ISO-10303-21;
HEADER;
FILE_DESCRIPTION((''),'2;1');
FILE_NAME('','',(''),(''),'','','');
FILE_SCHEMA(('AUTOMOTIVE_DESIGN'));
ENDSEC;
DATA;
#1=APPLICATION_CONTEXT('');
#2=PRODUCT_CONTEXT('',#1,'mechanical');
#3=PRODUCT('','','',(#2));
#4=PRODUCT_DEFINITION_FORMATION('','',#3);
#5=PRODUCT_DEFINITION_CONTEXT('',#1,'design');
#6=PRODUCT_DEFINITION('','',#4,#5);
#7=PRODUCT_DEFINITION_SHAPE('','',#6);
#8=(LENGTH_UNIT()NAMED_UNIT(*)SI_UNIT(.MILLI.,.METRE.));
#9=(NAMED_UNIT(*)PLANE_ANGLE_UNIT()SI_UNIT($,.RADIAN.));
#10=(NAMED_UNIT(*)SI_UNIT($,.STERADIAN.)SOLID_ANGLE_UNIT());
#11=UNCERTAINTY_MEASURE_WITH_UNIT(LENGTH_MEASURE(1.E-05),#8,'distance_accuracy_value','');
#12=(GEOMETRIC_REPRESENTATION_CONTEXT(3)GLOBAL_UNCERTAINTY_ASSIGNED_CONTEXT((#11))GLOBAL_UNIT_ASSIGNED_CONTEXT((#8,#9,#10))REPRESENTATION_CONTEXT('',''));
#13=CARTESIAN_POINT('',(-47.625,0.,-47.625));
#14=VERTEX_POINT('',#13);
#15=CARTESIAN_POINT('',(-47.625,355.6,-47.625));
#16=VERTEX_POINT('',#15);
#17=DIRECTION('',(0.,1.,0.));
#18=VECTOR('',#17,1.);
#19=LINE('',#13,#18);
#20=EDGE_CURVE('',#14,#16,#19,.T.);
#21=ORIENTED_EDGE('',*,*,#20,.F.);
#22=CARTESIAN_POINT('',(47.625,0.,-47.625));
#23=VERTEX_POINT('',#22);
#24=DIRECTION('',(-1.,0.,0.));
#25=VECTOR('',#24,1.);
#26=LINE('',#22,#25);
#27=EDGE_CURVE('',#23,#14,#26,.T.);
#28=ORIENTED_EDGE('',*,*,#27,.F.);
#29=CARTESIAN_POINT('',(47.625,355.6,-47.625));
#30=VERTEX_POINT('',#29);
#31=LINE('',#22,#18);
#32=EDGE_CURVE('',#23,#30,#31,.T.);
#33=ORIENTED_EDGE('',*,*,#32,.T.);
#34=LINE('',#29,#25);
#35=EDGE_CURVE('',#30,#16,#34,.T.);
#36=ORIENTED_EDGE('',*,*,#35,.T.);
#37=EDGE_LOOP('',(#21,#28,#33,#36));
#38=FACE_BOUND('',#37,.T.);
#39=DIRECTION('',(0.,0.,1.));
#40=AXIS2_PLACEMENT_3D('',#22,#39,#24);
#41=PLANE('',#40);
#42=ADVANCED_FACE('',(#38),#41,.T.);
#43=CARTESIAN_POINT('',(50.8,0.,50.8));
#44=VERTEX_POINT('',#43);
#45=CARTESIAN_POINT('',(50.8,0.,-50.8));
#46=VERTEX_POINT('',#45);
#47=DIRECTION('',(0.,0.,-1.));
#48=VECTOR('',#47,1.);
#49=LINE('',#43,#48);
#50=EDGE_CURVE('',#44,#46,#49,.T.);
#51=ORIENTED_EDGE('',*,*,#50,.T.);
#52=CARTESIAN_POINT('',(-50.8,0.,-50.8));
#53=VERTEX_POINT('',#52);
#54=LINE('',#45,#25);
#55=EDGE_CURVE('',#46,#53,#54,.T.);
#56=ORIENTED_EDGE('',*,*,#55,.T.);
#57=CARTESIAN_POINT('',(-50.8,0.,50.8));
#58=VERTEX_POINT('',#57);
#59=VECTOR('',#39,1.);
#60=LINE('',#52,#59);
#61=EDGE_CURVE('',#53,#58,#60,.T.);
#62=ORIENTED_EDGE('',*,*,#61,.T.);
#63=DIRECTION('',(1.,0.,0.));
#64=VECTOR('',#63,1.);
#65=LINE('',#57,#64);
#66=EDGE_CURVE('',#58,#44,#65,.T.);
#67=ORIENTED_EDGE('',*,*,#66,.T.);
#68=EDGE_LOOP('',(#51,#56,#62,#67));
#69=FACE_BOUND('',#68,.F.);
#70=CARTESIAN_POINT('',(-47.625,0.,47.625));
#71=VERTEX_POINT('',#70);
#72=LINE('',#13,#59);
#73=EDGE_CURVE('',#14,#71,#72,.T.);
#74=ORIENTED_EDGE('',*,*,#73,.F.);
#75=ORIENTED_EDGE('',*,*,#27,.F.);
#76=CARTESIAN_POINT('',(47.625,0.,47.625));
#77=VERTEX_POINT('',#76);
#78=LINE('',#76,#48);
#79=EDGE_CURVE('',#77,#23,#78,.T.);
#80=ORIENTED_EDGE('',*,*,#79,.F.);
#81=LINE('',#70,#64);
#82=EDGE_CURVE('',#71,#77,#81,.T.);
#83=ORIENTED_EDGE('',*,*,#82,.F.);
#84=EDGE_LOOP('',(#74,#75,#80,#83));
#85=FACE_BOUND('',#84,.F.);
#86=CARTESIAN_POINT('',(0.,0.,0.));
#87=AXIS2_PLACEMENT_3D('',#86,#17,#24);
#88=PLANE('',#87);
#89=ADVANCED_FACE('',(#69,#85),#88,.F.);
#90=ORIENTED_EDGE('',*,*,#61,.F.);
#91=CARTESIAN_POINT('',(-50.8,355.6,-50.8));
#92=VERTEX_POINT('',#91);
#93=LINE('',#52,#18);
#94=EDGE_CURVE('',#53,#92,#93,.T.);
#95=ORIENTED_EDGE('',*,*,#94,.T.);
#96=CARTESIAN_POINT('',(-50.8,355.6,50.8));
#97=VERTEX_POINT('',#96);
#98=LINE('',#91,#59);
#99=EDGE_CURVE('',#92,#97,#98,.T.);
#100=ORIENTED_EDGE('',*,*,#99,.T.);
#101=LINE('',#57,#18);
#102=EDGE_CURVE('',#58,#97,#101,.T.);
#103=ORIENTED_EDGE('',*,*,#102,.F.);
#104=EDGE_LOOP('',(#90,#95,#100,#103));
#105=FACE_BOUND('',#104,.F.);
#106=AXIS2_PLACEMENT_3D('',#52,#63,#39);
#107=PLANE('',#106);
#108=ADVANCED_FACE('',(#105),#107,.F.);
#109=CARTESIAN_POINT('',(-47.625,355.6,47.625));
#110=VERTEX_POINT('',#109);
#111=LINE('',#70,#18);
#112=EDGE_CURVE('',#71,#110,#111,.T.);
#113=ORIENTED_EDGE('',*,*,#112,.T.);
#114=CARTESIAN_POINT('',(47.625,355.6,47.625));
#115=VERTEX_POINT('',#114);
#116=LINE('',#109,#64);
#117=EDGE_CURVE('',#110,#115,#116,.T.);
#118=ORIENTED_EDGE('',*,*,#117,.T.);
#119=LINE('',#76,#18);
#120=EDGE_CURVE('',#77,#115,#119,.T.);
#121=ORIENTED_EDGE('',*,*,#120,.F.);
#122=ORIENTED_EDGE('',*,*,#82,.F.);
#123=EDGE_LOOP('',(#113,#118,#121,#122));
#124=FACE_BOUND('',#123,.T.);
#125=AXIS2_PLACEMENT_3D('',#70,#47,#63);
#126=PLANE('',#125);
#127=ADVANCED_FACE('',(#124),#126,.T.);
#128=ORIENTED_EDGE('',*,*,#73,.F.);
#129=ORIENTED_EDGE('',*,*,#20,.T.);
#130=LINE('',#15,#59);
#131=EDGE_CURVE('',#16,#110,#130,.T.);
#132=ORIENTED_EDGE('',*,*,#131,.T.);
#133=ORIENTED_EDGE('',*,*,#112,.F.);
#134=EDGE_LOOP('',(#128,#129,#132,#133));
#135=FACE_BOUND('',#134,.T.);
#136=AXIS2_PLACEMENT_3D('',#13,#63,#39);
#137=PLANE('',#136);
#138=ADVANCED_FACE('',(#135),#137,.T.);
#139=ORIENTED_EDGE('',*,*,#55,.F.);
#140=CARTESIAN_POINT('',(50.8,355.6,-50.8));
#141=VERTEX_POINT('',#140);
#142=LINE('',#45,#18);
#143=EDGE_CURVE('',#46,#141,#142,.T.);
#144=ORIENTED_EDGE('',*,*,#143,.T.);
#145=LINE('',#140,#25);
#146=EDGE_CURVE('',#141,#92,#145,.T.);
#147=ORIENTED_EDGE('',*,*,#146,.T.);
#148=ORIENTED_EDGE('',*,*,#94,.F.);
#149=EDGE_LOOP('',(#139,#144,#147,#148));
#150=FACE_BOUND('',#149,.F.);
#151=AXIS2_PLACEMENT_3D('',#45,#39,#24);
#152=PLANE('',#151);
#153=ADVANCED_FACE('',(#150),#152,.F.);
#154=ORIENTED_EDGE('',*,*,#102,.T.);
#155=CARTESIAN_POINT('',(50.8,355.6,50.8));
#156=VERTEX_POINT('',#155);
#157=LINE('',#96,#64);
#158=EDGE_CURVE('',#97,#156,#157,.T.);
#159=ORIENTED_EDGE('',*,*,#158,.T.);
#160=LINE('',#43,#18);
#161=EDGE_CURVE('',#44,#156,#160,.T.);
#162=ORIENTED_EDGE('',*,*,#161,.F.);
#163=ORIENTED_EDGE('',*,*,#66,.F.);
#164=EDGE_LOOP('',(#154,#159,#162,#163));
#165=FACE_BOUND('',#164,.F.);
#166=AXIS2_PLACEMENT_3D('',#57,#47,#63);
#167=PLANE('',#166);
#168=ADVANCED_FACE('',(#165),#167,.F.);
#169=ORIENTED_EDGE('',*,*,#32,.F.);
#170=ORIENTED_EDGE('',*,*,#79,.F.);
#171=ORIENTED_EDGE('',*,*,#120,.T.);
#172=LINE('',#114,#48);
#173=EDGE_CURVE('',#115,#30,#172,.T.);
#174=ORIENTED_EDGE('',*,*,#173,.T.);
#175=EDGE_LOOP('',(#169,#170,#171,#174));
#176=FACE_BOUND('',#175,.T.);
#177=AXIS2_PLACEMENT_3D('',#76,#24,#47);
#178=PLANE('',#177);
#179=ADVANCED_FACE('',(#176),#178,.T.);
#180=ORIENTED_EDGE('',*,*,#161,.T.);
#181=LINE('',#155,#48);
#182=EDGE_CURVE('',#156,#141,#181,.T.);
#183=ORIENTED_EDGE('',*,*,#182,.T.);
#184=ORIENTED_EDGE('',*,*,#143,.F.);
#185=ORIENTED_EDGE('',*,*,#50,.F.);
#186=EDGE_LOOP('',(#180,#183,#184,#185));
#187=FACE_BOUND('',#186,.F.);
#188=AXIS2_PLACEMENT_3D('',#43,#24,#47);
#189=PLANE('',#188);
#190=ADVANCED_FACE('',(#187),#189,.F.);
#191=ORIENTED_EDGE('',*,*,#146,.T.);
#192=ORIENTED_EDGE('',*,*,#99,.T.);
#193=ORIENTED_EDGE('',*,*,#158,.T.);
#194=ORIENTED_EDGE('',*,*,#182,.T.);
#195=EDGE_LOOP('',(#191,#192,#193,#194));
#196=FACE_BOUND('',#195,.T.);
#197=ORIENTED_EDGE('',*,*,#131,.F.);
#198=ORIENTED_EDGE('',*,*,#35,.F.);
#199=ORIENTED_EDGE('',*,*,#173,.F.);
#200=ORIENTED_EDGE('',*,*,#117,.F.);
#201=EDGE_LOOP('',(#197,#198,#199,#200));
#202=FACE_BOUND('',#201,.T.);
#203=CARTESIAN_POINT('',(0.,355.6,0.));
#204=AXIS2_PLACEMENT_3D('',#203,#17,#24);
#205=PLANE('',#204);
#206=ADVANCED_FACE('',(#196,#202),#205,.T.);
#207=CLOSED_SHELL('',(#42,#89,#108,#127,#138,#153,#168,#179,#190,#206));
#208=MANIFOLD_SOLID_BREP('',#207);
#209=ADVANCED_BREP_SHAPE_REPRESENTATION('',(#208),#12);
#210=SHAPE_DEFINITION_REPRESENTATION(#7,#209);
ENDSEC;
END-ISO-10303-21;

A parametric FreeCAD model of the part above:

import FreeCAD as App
import Part
import Sketcher

V = App.Vector
Q = App.Units.Quantity

doc = App.newDocument("Part")
body = doc.addObject("PartDesign::Body", "Body")

# Sketch on XZ plane
sketch1 = body.newObject("Sketcher::SketchObject", "Sketch")
sketch1.AttachmentSupport = (doc.getObject("XZ_Plane"), [""])
sketch1.MapMode = "FlatFace"
sketch1.addGeometry([
    Part.LineSegment(V(-51, 51, 0), V(51, 51, 0)),  # 0
    Part.LineSegment(V(51, 51, 0), V(51, -51, 0)),  # 1
    Part.LineSegment(V(51, -51, 0), V(-51, -51, 0)),  # 2
    Part.LineSegment(V(-51, -51, 0), V(-51, 51, 0)),  # 3
    Part.LineSegment(V(48, -48, 0), V(48, 48, 0)),  # 4
    Part.LineSegment(V(48, 48, 0), V(-48, 48, 0)),  # 5
    Part.LineSegment(V(-48, 48, 0), V(-48, -48, 0)),  # 6
    Part.LineSegment(V(-48, -48, 0), V(48, -48, 0)),  # 7
], False)
sketch1.addConstraint([
    Sketcher.Constraint("Coincident", 0, 2, 1, 1),
    Sketcher.Constraint("Coincident", 1, 2, 2, 1),
    Sketcher.Constraint("Coincident", 2, 2, 3, 1),
    Sketcher.Constraint("Coincident", 3, 2, 0, 1),
    Sketcher.Constraint("Coincident", 4, 2, 5, 1),
    Sketcher.Constraint("Coincident", 5, 2, 6, 1),
    Sketcher.Constraint("Coincident", 6, 2, 7, 1),
    Sketcher.Constraint("Coincident", 7, 2, 4, 1),
    Sketcher.Constraint("Horizontal", 0),
    Sketcher.Constraint("Vertical", 1),
    Sketcher.Constraint("Horizontal", 2),
    Sketcher.Constraint("Vertical", 3),
    Sketcher.Constraint("Vertical", 4),
    Sketcher.Constraint("Horizontal", 5),
    Sketcher.Constraint("Vertical", 6),
    Sketcher.Constraint("Horizontal", 7),
    Sketcher.Constraint("Symmetric", 0, 2, 2, 2, -1, 1),
    Sketcher.Constraint("Symmetric", 4, 2, 6, 2, -1, 1),
    Sketcher.Constraint("Equal", 2, 1),
    Sketcher.Constraint("Equal", 7, 4),
    Sketcher.Constraint("DistanceX", 0, 1, 0, 2, Q("4 in")),
    Sketcher.Constraint("DistanceX", 4, 2, 0, 2, Q("0.125 in")),
])
pad1 = body.newObject("PartDesign::Pad", "Pad")
pad1.Profile = sketch1
pad1.Length = Q("14 in")
pad1.Reversed = True

doc.recompute()
